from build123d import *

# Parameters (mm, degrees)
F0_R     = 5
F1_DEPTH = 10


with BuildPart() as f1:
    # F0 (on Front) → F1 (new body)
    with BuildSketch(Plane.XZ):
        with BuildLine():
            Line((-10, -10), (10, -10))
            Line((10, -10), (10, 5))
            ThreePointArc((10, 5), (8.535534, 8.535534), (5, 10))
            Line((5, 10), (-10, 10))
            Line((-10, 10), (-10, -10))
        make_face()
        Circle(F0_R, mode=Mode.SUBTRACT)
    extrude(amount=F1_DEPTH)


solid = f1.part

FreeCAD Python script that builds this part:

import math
import FreeCAD as App
import Part
import Sketcher
Q = App.Units.Quantity

doc = App.newDocument("Part")
body = doc.addObject("PartDesign::Body", "Body")

# Sketch on XZ plane
sketch1 = body.newObject("Sketcher::SketchObject", "Sketch")
sketch1.AttachmentSupport = (doc.getObject("XZ_Plane"), [""])
sketch1.MapMode = "FlatFace"
sketch1.addGeometry([
    Part.LineSegment(App.Vector(-10, -10, 0), App.Vector(10, -10, 0)),  # 0
    Part.LineSegment(App.Vector(10, -10, 0), App.Vector(10, 5, 0)),  # 1
    Part.ArcOfCircle(Part.Circle(App.Vector(5, 5, 0), App.Vector(0, 0, 1), 5), math.radians(0), math.radians(90)),  # 2
    Part.LineSegment(App.Vector(5, 10, 0), App.Vector(-10, 10, 0)),  # 3
    Part.LineSegment(App.Vector(-10, 10, 0), App.Vector(-10, -10, 0)),  # 4
    Part.Circle(App.Vector(0, 0, 0), App.Vector(0, 0, 1), 5),  # 5
], False)
sketch1.addConstraint([
    Sketcher.Constraint("Coincident", 0, 2, 1, 1),
    Sketcher.Constraint("Tangent", 1, 2, 2, 1),
    Sketcher.Constraint("Tangent", 2, 2, 3, 1),
    Sketcher.Constraint("Coincident", 3, 2, 4, 1),
    Sketcher.Constraint("Coincident", 4, 2, 0, 1),
    Sketcher.Constraint("Horizontal", 0),
    Sketcher.Constraint("Vertical", 1),
    Sketcher.Constraint("Horizontal", 3),
    Sketcher.Constraint("Vertical", 4),
    Sketcher.Constraint("Coincident", 5, 3, -1, 1),
    Sketcher.Constraint("Equal", 2, 5),
    Sketcher.Constraint("Symmetric", 0, 2, 3, 2, -1, 1),
    Sketcher.Constraint("Equal", 3, 1),
    Sketcher.Constraint("Diameter", 5, Q("10 mm")),
    Sketcher.Constraint("DistanceX", 0, 1, 0, 2, Q("20 mm")),
])
pad1 = body.newObject("PartDesign::Pad", "Pad")
pad1.Profile = sketch1
pad1.Length = 10

doc.recompute()
